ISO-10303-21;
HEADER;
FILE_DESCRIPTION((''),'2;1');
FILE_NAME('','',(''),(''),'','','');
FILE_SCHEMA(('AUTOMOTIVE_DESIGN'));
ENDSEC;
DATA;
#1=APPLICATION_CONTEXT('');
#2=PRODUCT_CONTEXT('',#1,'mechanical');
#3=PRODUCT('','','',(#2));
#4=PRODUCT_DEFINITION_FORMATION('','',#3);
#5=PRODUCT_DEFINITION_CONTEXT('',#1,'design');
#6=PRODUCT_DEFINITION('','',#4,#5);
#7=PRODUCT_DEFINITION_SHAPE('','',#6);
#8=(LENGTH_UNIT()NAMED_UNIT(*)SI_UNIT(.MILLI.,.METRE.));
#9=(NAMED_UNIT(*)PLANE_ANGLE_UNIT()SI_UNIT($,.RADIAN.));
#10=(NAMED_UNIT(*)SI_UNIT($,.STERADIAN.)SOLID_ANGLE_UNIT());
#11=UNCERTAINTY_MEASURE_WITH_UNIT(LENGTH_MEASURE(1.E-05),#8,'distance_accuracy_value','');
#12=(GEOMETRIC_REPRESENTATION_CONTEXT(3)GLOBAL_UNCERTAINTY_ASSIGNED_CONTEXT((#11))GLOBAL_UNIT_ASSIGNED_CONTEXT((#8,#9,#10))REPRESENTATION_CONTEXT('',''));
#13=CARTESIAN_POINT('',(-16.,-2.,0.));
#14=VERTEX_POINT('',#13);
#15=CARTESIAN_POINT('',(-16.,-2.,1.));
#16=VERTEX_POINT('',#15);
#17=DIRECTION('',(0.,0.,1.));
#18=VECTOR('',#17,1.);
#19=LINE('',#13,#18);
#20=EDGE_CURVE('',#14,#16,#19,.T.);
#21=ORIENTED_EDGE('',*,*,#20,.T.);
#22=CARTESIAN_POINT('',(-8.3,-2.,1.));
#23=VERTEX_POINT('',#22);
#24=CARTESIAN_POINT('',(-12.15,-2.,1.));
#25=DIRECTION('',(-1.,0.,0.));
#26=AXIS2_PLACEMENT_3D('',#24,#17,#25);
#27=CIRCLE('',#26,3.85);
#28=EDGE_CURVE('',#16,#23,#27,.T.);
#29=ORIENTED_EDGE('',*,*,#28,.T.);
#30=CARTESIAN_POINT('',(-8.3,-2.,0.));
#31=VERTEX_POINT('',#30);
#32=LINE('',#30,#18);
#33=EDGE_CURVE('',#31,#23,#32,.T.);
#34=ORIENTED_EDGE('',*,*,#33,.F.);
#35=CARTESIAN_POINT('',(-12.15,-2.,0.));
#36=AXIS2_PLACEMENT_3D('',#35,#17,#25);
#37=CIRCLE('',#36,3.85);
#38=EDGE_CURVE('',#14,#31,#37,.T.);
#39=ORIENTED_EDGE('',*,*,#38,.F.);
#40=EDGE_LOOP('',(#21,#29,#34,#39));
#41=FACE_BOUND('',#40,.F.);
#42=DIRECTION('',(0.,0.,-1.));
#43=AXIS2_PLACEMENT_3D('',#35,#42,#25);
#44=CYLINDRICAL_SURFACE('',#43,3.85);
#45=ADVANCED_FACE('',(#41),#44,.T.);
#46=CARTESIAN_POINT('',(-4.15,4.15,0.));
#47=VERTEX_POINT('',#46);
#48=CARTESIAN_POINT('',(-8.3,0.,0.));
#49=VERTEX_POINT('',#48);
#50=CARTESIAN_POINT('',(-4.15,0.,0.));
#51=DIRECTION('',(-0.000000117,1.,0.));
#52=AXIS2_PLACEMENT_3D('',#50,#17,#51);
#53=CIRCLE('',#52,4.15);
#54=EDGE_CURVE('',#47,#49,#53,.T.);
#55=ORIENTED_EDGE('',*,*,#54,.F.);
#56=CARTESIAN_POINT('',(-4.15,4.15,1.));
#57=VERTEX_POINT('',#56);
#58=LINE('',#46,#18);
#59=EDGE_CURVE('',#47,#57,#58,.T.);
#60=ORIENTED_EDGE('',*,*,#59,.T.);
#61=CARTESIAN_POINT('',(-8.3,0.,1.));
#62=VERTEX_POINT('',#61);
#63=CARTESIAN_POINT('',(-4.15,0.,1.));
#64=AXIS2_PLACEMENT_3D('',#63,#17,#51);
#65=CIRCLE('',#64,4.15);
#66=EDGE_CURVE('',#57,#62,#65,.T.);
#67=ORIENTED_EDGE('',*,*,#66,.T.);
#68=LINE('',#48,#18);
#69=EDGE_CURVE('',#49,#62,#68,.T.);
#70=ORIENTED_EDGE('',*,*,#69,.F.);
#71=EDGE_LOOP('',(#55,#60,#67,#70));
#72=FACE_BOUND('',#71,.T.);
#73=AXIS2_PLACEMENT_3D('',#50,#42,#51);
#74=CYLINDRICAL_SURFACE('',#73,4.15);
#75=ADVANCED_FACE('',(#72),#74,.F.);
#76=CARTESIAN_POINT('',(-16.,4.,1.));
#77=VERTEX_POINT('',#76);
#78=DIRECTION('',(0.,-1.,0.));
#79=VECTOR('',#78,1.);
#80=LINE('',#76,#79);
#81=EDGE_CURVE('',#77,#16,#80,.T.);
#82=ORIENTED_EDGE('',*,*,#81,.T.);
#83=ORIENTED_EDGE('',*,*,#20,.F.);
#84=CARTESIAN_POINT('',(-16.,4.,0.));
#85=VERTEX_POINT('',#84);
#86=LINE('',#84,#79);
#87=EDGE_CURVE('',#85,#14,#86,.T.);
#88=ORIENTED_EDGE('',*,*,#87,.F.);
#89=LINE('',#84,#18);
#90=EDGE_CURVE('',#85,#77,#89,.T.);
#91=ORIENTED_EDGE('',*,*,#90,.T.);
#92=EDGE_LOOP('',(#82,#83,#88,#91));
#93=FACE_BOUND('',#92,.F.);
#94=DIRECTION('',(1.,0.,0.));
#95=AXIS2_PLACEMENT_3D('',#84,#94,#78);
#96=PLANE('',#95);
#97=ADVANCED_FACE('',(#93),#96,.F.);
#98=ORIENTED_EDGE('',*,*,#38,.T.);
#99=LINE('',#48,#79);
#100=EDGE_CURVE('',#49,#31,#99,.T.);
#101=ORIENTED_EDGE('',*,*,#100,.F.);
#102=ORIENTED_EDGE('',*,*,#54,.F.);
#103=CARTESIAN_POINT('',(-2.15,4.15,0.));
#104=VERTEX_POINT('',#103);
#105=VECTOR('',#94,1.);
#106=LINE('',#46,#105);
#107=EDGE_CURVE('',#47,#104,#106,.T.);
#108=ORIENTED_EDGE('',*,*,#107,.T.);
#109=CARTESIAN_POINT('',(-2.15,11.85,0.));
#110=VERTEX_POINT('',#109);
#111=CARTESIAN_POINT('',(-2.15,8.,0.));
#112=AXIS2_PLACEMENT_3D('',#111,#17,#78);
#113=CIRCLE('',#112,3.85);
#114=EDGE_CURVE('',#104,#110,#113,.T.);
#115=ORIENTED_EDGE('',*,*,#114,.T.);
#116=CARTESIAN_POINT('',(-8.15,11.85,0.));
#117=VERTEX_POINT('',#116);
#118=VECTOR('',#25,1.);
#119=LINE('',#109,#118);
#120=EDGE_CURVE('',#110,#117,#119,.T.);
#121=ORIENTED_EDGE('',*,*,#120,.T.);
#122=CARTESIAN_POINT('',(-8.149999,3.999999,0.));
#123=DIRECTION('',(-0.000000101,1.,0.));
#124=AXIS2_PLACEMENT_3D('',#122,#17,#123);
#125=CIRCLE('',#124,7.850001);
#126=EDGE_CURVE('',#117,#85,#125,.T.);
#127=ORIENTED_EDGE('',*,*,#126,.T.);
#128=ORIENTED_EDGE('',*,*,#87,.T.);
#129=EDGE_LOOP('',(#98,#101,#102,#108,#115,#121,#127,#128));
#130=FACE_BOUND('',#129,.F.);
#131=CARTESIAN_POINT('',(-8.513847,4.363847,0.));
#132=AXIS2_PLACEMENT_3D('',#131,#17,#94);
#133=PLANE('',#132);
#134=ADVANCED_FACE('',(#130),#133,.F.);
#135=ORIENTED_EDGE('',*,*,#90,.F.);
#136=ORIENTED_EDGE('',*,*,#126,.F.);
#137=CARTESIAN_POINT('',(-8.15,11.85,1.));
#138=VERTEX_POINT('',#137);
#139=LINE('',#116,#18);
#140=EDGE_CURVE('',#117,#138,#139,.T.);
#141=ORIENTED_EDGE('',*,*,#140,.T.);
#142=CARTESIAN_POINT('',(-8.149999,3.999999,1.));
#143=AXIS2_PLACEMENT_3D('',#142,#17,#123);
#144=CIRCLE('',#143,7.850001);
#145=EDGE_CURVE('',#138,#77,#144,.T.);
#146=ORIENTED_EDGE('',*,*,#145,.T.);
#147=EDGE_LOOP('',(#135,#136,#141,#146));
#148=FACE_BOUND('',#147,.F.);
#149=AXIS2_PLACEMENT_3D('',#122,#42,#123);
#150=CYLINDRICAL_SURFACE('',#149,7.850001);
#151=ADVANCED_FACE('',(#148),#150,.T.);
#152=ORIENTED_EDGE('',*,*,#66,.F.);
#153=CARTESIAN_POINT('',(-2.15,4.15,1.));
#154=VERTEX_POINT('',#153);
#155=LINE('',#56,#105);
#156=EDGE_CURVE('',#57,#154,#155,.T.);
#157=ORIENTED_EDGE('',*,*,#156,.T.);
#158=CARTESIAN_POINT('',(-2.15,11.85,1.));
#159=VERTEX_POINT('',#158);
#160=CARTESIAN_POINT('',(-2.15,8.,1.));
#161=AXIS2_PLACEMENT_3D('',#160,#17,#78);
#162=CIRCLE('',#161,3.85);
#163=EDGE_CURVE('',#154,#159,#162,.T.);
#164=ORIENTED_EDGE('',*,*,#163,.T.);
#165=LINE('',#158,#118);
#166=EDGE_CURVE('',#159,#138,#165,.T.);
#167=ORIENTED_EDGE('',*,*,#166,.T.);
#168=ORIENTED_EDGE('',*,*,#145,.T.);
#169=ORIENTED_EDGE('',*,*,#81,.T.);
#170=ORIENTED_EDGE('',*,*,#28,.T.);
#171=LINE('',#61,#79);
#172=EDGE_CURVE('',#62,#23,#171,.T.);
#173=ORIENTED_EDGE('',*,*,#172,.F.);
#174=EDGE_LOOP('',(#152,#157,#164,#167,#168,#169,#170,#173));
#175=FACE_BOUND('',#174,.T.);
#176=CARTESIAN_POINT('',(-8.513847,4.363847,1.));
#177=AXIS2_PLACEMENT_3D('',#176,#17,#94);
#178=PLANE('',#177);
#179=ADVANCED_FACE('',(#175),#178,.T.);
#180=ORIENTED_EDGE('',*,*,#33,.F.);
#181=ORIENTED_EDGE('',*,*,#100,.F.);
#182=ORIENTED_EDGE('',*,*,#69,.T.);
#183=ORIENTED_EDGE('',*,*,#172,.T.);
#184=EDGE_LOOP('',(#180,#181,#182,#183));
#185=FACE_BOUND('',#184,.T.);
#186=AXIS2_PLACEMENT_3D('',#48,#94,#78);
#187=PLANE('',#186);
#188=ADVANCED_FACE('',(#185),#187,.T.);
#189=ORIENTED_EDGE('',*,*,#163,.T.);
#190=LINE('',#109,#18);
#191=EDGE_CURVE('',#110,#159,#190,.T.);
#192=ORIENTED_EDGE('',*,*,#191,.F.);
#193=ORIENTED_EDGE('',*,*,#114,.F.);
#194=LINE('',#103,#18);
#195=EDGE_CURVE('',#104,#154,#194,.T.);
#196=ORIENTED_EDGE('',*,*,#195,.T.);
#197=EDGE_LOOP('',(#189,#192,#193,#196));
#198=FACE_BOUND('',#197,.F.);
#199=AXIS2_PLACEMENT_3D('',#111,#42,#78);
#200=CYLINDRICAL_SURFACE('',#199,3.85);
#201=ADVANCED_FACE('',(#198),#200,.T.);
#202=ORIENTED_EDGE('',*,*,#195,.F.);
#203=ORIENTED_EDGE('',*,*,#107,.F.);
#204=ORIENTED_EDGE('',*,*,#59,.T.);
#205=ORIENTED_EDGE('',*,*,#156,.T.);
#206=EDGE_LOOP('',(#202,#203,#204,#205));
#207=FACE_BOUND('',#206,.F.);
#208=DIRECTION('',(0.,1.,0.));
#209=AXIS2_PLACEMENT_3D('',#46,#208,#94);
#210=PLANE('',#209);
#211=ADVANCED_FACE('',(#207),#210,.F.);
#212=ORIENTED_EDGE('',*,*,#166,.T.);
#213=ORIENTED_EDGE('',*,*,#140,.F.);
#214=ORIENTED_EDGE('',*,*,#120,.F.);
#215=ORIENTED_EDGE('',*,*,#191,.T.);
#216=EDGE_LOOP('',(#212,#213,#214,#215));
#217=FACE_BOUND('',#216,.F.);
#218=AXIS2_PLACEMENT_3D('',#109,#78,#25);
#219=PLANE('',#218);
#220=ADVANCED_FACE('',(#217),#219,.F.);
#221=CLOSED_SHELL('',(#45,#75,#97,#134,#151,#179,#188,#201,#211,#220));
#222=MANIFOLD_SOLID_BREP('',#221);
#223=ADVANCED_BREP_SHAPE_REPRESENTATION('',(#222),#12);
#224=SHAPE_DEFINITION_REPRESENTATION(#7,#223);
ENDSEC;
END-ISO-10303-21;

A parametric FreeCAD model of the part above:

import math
import FreeCAD as App
import Part
import Sketcher

doc = App.newDocument("Part")
body = doc.addObject("PartDesign::Body", "Body")

# Sketch on XY plane
sketch1 = doc.addObject("Sketcher::SketchObject", "Sketch")
body.addObject(sketch1)
sketch1.AttachmentSupport = (doc.XY_Plane, [""])
sketch1.MapMode = "FlatFace"
sketch1.addGeometry([
    Part.LineSegment(App.Vector(-4.15, 4.15, 0), App.Vector(-2.15, 4.15, 0)),  # 0
    Part.ArcOfCircle(Part.Circle(App.Vector(-2.15, 8, 0), App.Vector(0, 0, 1), 3.85), math.radians(-90), math.radians(90)),  # 1
    Part.LineSegment(App.Vector(-2.15, 11.85, 0), App.Vector(-8.15, 11.85, 0)),  # 2
    Part.ArcOfCircle(Part.Circle(App.Vector(-8.149999, 3.999999, 0), App.Vector(0, 0, 1), 7.850001), math.radians(90.000006), math.radians(179.999994)),  # 3
    Part.LineSegment(App.Vector(-16, 4, 0), App.Vector(-16, -2, 0)),  # 4
    Part.ArcOfCircle(Part.Circle(App.Vector(-12.15, -2, 0), App.Vector(0, 0, 1), 3.85), math.radians(180), math.radians(360)),  # 5
    Part.LineSegment(App.Vector(-8.3, -2, 0), App.Vector(-8.3, 0, 0)),  # 6
    Part.ArcOfCircle(Part.Circle(App.Vector(-4.15, 0, 0), App.Vector(0, 0, 1), 4.15), math.radians(90.000007), math.radians(179.999993)),  # 7
], False)
sketch1.addConstraint([
    Sketcher.Constraint("Tangent", 0, 2, 1, 1),
    Sketcher.Constraint("Tangent", 1, 2, 2, 1),
    Sketcher.Constraint("Tangent", 2, 2, 3, 1),
    Sketcher.Constraint("Tangent", 3, 2, 4, 1),
    Sketcher.Constraint("Tangent", 4, 2, 5, 1),
    Sketcher.Constraint("Tangent", 5, 2, 6, 1),
    Sketcher.Constraint("Tangent", 6, 2, 7, 2),
    Sketcher.Constraint("Tangent", 7, 1, 0, 1),
    Sketcher.Constraint("Horizontal", 0),
    Sketcher.Constraint("Horizontal", 2),
    Sketcher.Constraint("Vertical", 4),
    Sketcher.Constraint("Vertical", 6),
    Sketcher.Constraint("Equal", 1, 5),
    Sketcher.Constraint("PointOnObject", 7, 3, -1),
    Sketcher.Constraint("Equal", 2, 4),
    Sketcher.Constraint("DistanceX", 0, 1, 0, 2, 2.0),
    Sketcher.Constraint("DistanceX", 2, 2, 2, 1, 6.0),
    Sketcher.Constraint("Radius", 1, 3.85),
    Sketcher.Constraint("Radius", 3, 7.850001),
    Sketcher.Constraint("DistanceX", 3, 2, -1, 1, 16.0),
])
pad1 = doc.addObject("PartDesign::Pad", "Pad")
body.addObject(pad1)
pad1.Profile = sketch1
pad1.Length = 1

doc.recompute()
